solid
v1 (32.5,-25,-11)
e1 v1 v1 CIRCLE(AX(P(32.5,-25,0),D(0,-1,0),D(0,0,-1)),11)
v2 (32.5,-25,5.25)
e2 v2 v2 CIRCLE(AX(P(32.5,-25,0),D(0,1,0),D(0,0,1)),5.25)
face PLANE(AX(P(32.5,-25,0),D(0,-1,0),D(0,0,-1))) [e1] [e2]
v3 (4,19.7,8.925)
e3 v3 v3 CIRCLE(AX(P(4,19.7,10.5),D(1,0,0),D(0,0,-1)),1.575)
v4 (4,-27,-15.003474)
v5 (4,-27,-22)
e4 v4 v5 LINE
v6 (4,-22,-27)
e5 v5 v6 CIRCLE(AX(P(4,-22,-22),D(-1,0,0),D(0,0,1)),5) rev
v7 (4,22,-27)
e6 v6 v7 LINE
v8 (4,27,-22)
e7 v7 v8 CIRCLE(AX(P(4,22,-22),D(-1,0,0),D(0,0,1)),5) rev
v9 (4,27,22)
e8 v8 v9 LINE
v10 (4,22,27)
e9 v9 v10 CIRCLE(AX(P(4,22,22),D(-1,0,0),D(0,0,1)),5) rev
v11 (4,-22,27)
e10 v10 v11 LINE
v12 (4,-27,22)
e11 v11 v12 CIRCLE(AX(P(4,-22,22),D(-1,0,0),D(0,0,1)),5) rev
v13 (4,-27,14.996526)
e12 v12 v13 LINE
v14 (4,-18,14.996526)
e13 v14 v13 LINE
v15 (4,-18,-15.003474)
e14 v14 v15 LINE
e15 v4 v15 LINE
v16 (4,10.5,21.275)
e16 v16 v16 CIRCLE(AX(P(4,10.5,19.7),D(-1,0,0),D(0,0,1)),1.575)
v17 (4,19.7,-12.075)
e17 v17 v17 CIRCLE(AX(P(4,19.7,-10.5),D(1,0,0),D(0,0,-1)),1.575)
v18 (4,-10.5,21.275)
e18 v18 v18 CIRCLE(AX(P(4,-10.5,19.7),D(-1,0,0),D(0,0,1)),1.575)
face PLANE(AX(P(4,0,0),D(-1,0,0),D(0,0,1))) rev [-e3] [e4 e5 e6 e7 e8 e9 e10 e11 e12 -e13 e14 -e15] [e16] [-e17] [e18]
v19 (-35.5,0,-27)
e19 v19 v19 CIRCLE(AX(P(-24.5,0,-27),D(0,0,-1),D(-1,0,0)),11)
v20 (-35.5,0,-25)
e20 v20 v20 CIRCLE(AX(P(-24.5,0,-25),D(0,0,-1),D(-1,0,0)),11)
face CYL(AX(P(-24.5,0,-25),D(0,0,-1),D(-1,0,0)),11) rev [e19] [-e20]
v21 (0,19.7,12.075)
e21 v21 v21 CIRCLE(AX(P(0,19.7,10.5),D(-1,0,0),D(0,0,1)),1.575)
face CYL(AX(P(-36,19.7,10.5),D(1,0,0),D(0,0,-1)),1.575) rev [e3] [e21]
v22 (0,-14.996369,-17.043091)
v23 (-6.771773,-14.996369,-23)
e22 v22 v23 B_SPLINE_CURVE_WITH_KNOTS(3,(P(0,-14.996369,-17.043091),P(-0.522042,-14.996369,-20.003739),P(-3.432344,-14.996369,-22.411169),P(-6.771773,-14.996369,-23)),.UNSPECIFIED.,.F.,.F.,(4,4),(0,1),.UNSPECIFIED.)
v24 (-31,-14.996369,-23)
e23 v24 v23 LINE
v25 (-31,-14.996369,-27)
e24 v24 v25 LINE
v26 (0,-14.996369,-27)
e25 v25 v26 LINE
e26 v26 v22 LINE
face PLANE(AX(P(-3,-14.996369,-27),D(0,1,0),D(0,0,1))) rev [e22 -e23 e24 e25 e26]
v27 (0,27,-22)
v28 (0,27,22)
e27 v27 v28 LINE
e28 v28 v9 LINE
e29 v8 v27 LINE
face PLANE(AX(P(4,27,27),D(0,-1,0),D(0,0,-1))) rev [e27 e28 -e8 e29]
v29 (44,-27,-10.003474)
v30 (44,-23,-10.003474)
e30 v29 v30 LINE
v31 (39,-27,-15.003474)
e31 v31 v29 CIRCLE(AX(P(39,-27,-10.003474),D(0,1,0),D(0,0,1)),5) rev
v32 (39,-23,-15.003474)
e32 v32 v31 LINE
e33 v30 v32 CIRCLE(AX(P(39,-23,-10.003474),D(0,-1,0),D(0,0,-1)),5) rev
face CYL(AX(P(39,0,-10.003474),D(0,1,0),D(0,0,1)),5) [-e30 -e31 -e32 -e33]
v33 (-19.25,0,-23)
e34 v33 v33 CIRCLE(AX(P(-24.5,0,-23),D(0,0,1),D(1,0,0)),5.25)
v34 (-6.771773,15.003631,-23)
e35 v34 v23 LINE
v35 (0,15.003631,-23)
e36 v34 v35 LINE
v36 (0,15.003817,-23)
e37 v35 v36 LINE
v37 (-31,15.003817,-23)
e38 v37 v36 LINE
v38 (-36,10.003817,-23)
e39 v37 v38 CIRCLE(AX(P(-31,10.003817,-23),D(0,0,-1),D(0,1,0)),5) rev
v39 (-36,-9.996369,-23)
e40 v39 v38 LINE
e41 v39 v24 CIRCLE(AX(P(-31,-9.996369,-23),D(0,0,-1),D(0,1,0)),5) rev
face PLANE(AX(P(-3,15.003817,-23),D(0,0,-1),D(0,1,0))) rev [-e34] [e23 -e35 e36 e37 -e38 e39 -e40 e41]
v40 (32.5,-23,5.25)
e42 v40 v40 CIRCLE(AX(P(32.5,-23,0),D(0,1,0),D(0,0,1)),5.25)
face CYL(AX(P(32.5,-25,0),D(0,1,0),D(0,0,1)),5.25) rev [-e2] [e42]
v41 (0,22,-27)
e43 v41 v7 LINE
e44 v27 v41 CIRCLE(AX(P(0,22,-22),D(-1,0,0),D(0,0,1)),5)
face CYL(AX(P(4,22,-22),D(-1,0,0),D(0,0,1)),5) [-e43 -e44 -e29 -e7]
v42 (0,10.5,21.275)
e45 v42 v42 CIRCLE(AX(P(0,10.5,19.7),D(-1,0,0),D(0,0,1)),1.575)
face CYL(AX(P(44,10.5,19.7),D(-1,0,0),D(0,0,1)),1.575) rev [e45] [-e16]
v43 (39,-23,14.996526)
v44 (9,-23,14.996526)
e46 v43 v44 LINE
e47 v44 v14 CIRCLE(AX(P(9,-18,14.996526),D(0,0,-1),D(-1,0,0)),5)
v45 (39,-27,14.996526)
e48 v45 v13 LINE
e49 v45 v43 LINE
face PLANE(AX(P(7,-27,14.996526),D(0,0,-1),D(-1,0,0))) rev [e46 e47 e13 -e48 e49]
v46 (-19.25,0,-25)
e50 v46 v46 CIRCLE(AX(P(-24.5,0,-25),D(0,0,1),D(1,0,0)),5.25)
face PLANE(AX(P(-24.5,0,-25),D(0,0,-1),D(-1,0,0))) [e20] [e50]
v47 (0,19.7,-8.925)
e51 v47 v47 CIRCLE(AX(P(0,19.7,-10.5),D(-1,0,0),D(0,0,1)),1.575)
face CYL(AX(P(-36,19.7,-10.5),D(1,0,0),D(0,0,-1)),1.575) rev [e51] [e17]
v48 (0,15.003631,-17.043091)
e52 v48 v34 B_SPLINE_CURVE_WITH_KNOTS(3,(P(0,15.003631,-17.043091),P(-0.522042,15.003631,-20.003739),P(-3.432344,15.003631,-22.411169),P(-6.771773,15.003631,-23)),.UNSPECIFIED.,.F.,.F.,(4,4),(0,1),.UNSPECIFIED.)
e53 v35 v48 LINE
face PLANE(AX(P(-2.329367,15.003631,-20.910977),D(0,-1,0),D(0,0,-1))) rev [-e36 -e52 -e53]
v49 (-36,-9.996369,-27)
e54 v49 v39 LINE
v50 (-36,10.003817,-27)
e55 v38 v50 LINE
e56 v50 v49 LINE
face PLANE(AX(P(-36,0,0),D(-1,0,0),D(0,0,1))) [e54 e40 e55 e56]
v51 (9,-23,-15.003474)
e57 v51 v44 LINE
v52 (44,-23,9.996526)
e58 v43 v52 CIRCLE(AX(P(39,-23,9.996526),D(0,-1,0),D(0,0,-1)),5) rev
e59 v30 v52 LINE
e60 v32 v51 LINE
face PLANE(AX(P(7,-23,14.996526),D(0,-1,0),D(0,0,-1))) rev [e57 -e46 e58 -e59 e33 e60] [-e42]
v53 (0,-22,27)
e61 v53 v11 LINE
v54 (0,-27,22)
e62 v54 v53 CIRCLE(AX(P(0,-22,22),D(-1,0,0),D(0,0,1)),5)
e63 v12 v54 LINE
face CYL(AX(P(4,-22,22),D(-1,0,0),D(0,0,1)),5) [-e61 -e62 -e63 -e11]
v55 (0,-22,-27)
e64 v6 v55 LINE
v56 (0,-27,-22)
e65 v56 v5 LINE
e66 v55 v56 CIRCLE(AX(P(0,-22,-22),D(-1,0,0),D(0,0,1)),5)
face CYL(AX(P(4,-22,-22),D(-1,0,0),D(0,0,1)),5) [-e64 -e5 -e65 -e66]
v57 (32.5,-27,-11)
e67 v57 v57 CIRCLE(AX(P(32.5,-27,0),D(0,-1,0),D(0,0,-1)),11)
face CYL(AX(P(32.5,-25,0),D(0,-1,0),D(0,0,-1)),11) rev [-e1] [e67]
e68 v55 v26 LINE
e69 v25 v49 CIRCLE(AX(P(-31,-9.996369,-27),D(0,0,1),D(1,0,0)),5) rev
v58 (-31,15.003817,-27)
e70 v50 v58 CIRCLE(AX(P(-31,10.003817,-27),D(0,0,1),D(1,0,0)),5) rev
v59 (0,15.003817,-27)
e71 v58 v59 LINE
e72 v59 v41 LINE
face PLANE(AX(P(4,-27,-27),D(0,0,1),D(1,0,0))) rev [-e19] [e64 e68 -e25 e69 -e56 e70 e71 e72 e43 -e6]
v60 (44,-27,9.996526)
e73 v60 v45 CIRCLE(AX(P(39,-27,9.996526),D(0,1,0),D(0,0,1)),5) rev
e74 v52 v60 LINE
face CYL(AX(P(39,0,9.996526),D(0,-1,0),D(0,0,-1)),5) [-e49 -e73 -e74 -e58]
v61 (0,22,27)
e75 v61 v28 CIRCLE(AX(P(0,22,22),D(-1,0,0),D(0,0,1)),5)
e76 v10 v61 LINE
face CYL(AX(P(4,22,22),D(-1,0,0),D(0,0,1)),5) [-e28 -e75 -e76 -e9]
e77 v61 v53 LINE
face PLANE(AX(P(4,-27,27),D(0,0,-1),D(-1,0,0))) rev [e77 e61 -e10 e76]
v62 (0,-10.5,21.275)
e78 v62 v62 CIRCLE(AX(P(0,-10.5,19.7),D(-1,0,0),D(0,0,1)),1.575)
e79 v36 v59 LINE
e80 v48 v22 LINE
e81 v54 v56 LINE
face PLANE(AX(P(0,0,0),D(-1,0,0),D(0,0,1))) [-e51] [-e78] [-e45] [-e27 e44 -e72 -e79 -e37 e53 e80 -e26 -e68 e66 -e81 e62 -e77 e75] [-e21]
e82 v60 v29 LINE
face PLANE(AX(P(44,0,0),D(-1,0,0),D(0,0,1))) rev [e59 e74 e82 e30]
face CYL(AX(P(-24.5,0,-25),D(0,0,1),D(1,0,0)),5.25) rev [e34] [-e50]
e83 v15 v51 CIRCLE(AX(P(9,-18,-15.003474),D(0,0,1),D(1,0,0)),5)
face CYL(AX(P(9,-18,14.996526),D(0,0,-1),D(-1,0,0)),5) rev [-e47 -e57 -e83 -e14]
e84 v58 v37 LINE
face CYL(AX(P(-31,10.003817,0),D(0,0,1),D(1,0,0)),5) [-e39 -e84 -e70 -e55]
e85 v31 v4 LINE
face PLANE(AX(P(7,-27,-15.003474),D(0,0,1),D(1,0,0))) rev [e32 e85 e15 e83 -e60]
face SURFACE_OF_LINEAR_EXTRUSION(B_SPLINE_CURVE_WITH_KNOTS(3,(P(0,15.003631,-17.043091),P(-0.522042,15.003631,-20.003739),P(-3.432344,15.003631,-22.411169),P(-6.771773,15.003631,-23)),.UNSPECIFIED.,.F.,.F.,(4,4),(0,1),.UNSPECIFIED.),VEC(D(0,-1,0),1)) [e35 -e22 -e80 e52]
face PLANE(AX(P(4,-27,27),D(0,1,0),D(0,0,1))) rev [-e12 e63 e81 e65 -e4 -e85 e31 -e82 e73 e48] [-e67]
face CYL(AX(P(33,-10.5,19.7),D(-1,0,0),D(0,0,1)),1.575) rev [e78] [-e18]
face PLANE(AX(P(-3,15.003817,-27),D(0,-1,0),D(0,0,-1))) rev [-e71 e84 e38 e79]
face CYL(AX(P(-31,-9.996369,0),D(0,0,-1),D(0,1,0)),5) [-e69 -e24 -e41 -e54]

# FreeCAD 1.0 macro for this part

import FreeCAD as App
import Part
import Sketcher
from FreeCAD import Vector
Q = App.Units.Quantity


def edges_at(feature, points):
    """Names of the edges that pass closest to the given points."""
    edges = feature.Shape.Edges
    near = lambda p: min(range(len(edges)), key=lambda i: edges[i].distToShape(Part.Vertex(*p))[0])
    return sorted({f"Edge{near(p) + 1}" for p in points})

doc = App.newDocument("Part")
body = doc.addObject("PartDesign::Body", "Body")

# Sketch on YZ plane
sketch1 = doc.addObject("Sketcher::SketchObject", "Sketch")
body.addObject(sketch1)
sketch1.AttachmentSupport = (doc.YZ_Plane, [""])
sketch1.MapMode = "FlatFace"
sketch1.addGeometry([
    Part.LineSegment(Vector(27, 27, 0), Vector(-27, 27, 0)),
    Part.LineSegment(Vector(-27, 27, 0), Vector(-27, -27, 0)),
    Part.LineSegment(Vector(-27, -27, 0), Vector(27, -27, 0)),
    Part.LineSegment(Vector(27, -27, 0), Vector(27, 27, 0)),
], False)
sketch1.addConstraint([
    Sketcher.Constraint("Coincident", 0, 2, 1, 1),
    Sketcher.Constraint("Coincident", 1, 2, 2, 1),
    Sketcher.Constraint("Coincident", 2, 2, 3, 1),
    Sketcher.Constraint("Coincident", 3, 2, 0, 1),
    Sketcher.Constraint("Horizontal", 0),
    Sketcher.Constraint("Vertical", 1),
    Sketcher.Constraint("Horizontal", 2),
    Sketcher.Constraint("Vertical", 3),
    Sketcher.Constraint("Symmetric", 0, 2, 2, 2, -1, 1),
    Sketcher.Constraint("Equal", 2, 1),
    Sketcher.Constraint("DistanceX", 0, 2, 0, 1, Q("54 mm")),
])
pad1 = doc.addObject("PartDesign::Pad", "Pad")
body.addObject(pad1)
pad1.Profile = sketch1
pad1.Length = 4
doc.recompute()

fillet = doc.addObject("PartDesign::Fillet", "Fillet")
body.addObject(fillet)
fillet.Base = (pad1, edges_at(pad1, [
    (2, -27, -27),
    (2, -27, 27),
    (2, 27, 27),
    (2, 27, -27),
]))
fillet.Radius = 5

# Sketch on YZ plane
sketch2 = doc.addObject("Sketcher::SketchObject", "Sketch001")
body.addObject(sketch2)
sketch2.AttachmentSupport = (doc.YZ_Plane, [""])
sketch2.MapMode = "FlatFace"
sketch2.AttachmentOffset = App.Placement(Vector(0, 0, 4), App.Rotation())
sketch2.addGeometry([
    Part.LineSegment(Vector(-23, 14.996526, 0), Vector(-27, 14.996526, 0)),
    Part.LineSegment(Vector(-27, 14.996526, 0), Vector(-27, -15.003474, 0)),
    Part.LineSegment(Vector(-27, -15.003474, 0), Vector(-23, -15.003474, 0)),
    Part.LineSegment(Vector(-23, -15.003474, 0), Vector(-23, 14.996526, 0)),
], False)
sketch2.addConstraint([
    Sketcher.Constraint("Coincident", 0, 2, 1, 1),
    Sketcher.Constraint("Coincident", 1, 2, 2, 1),
    Sketcher.Constraint("Coincident", 2, 2, 3, 1),
    Sketcher.Constraint("Coincident", 3, 2, 0, 1),
    Sketcher.Constraint("Horizontal", 0),
    Sketcher.Constraint("Vertical", 1),
    Sketcher.Constraint("Horizontal", 2),
    Sketcher.Constraint("Vertical", 3),
    Sketcher.Constraint("DistanceX", 0, 2, 0, 1, Q("4 mm")),
    Sketcher.Constraint("DistanceY", 1, 2, 1, 1, Q("30 mm")),
    Sketcher.Constraint("DistanceX", 0, 2, -1, 1, Q("27 mm")),
    Sketcher.Constraint("DistanceY", -1, 1, 0, 2, Q("14.996526 mm")),
])
pad2 = doc.addObject("PartDesign::Pad", "Pad001")
body.addObject(pad2)
pad2.Profile = sketch2
pad2.Length = 3

# Sketch on YZ plane
sketch3 = doc.addObject("Sketcher::SketchObject", "Sketch002")
body.addObject(sketch3)
sketch3.AttachmentSupport = (doc.YZ_Plane, [""])
sketch3.MapMode = "FlatFace"
sketch3.AttachmentOffset = App.Placement(Vector(0, 0, 7), App.Rotation())
sketch3.addGeometry([
    Part.LineSegment(Vector(-23, 14.996526, 0), Vector(-27, 14.996526, 0)),
    Part.LineSegment(Vector(-27, 14.996526, 0), Vector(-27, -15.003474, 0)),
    Part.LineSegment(Vector(-27, -15.003474, 0), Vector(-23, -15.003474, 0)),
    Part.LineSegment(Vector(-23, -15.003474, 0), Vector(-23, 14.996526, 0)),
], False)
sketch3.addConstraint([
    Sketcher.Constraint("Coincident", 0, 2, 1, 1),
    Sketcher.Constraint("Coincident", 1, 2, 2, 1),
    Sketcher.Constraint("Coincident", 2, 2, 3, 1),
    Sketcher.Constraint("Coincident", 3, 2, 0, 1),
    Sketcher.Constraint("Horizontal", 0),
    Sketcher.Constraint("Vertical", 1),
    Sketcher.Constraint("Horizontal", 2),
    Sketcher.Constraint("Vertical", 3),
    Sketcher.Constraint("DistanceX", 0, 2, 0, 1, Q("4 mm")),
    Sketcher.Constraint("DistanceY", 1, 2, 1, 1, Q("30 mm")),
    Sketcher.Constraint("DistanceX", 0, 2, -1, 1, Q("27 mm")),
    Sketcher.Constraint("DistanceY", -1, 1, 0, 2, Q("14.996526 mm")),
])
pad3 = doc.addObject("PartDesign::Pad", "Pad002")
body.addObject(pad3)
pad3.Profile = sketch3
pad3.Length = 37

# Sketch on YZ plane
sketch4 = doc.addObject("Sketcher::SketchObject", "Sketch003")
body.addObject(sketch4)
sketch4.AttachmentSupport = (doc.YZ_Plane, [""])
sketch4.MapMode = "FlatFace"
sketch4.addGeometry([
    Part.LineSegment(Vector(15.003817, -27, 0), Vector(-14.996369, -27, 0)),
    Part.LineSegment(Vector(-14.996369, -27, 0), Vector(-14.996369, -23, 0)),
    Part.LineSegment(Vector(-14.996369, -23, 0), Vector(15.003817, -23, 0)),
    Part.LineSegment(Vector(15.003817, -23, 0), Vector(15.003817, -27, 0)),
], False)
sketch4.addConstraint([
    Sketcher.Constraint("Coincident", 0, 2, 1, 1),
    Sketcher.Constraint("Coincident", 1, 2, 2, 1),
    Sketcher.Constraint("Coincident", 2, 2, 3, 1),
    Sketcher.Constraint("Coincident", 3, 2, 0, 1),
    Sketcher.Constraint("Horizontal", 0),
    Sketcher.Constraint("Vertical", 1),
    Sketcher.Constraint("Horizontal", 2),
    Sketcher.Constraint("Vertical", 3),
    Sketcher.Constraint("DistanceY", 1, 1, 1, 2, Q("4 mm")),
    Sketcher.Constraint("DistanceY", 0, 2, -1, 1, Q("27 mm")),
    Sketcher.Constraint("DistanceX", 0, 2, 0, 1, Q("30.000186 mm")),
    Sketcher.Constraint("DistanceX", 0, 2, -1, 1, Q("14.996369 mm")),
])
pad4 = doc.addObject("PartDesign::Pad", "Pad003")
body.addObject(pad4)
pad4.Profile = sketch4
pad4.Length = 3
pad4.Reversed = True

# Sketch on YZ plane
sketch5 = doc.addObject("Sketcher::SketchObject", "Sketch004")
body.addObject(sketch5)
sketch5.AttachmentSupport = (doc.YZ_Plane, [""])
sketch5.MapMode = "FlatFace"
sketch5.AttachmentOffset = App.Placement(Vector(0, 0, -3), App.Rotation())
sketch5.addGeometry([
    Part.LineSegment(Vector(15.003817, -27, 0), Vector(-14.996369, -27, 0)),
    Part.LineSegment(Vector(-14.996369, -27, 0), Vector(-14.996369, -23, 0)),
    Part.LineSegment(Vector(-14.996369, -23, 0), Vector(15.003817, -23, 0)),
    Part.LineSegment(Vector(15.003817, -23, 0), Vector(15.003817, -27, 0)),
], False)
sketch5.addConstraint([
    Sketcher.Constraint("Coincident", 0, 2, 1, 1),
    Sketcher.Constraint("Coincident", 1, 2, 2, 1),
    Sketcher.Constraint("Coincident", 2, 2, 3, 1),
    Sketcher.Constraint("Coincident", 3, 2, 0, 1),
    Sketcher.Constraint("Horizontal", 0),
    Sketcher.Constraint("Vertical", 1),
    Sketcher.Constraint("Horizontal", 2),
    Sketcher.Constraint("Vertical", 3),
    Sketcher.Constraint("DistanceY", 1, 1, 1, 2, Q("4 mm")),
    Sketcher.Constraint("DistanceY", 0, 2, -1, 1, Q("27 mm")),
    Sketcher.Constraint("DistanceX", 0, 2, 0, 1, Q("30.000186 mm")),
    Sketcher.Constraint("DistanceX", 0, 2, -1, 1, Q("14.996369 mm")),
])
pad5 = doc.addObject("PartDesign::Pad", "Pad004")
body.addObject(pad5)
pad5.Profile = sketch5
pad5.Length = 33
pad5.Reversed = True
doc.recompute()

fillet2 = doc.addObject("PartDesign::Fillet", "Fillet001")
body.addObject(fillet2)
fillet2.Base = (pad5, edges_at(pad5, [
    (44, -25, 14.997),
    (44, -25, -15.003),
    (-36, -14.996, -25),
    (-36, 15.004, -25),
]))
fillet2.Radius = 5

# Sketch on XY plane
sketch6 = doc.addObject("Sketcher::SketchObject", "Sketch005")
body.addObject(sketch6)
sketch6.AttachmentSupport = (doc.XY_Plane, [""])
sketch6.MapMode = "FlatFace"
sketch6.AttachmentOffset = App.Placement(Vector(0, 0, -27), App.Rotation())
sketch6.addGeometry(Part.Circle(Vector(-24.5, 0, 0), Vector(0, 0, 1), 1.25), False)
sketch6.addConstraint([
    Sketcher.Constraint("PointOnObject", 0, 3, -1),
    Sketcher.Constraint("Diameter", 0, Q("2.5 mm")),
    Sketcher.Constraint("DistanceX", 0, 3, -1, 1, Q("24.5 mm")),
])
pocket1 = doc.addObject("PartDesign::Pocket", "Pocket")
body.addObject(pocket1)
pocket1.Profile = sketch6
pocket1.Type = "ThroughAll"
pocket1.Reversed = True

# Sketch on XZ plane
sketch7 = doc.addObject("Sketcher::SketchObject", "Sketch006")
body.addObject(sketch7)
sketch7.AttachmentSupport = (doc.XZ_Plane, [""])
sketch7.MapMode = "FlatFace"
sketch7.AttachmentOffset = App.Placement(Vector(0, 0, 27), App.Rotation())
sketch7.addGeometry(Part.Circle(Vector(32.5, 0, 0), Vector(0, 0, 1), 1.25), False)
sketch7.addConstraint([
    Sketcher.Constraint("PointOnObject", 0, 3, -1),
    Sketcher.Constraint("Diameter", 0, Q("2.5 mm")),
    Sketcher.Constraint("DistanceX", -1, 1, 0, 3, Q("32.5 mm")),
])
pocket2 = doc.addObject("PartDesign::Pocket", "Pocket001")
body.addObject(pocket2)
pocket2.Profile = sketch7
pocket2.Type = "ThroughAll"

# Sketch on YZ plane
sketch8 = doc.addObject("Sketcher::SketchObject", "Sketch007")
body.addObject(sketch8)
sketch8.AttachmentSupport = (doc.YZ_Plane, [""])
sketch8.MapMode = "FlatFace"
sketch8.AttachmentOffset = App.Placement(Vector(0, 0, 4), App.Rotation())
sketch8.addGeometry(Part.Circle(Vector(19.7, 10.5, 0), Vector(0, 0, 1), 1.575), False)
sketch8.addConstraint([
    Sketcher.Constraint("Diameter", 0, Q("3.15 mm")),
    Sketcher.Constraint("DistanceX", -1, 1, 0, 3, Q("19.7 mm")),
    Sketcher.Constraint("DistanceY", -1, 1, 0, 3, Q("10.5 mm")),
])
pocket3 = doc.addObject("PartDesign::Pocket", "Pocket002")
body.addObject(pocket3)
pocket3.Profile = sketch8
pocket3.Type = "ThroughAll"

# Sketch on YZ plane
sketch9 = doc.addObject("Sketcher::SketchObject", "Sketch008")
body.addObject(sketch9)
sketch9.AttachmentSupport = (doc.YZ_Plane, [""])
sketch9.MapMode = "FlatFace"
sketch9.AttachmentOffset = App.Placement(Vector(0, 0, 4), App.Rotation())
sketch9.addGeometry(Part.Circle(Vector(19.7, -10.5, 0), Vector(0, 0, 1), 1.575), False)
sketch9.addConstraint([
    Sketcher.Constraint("Diameter", 0, Q("3.15 mm")),
    Sketcher.Constraint("DistanceX", -1, 1, 0, 3, Q("19.7 mm")),
    Sketcher.Constraint("DistanceY", 0, 3, -1, 1, Q("10.5 mm")),
])
pocket4 = doc.addObject("PartDesign::Pocket", "Pocket003")
body.addObject(pocket4)
pocket4.Profile = sketch9
pocket4.Type = "ThroughAll"
doc.recompute()

fillet3 = doc.addObject("PartDesign::Fillet", "Fillet002")
body.addObject(fillet3)
fillet3.Base = (pocket4, edges_at(pocket4, [(4, -23, -0.003)]))
fillet3.Radius = 5

# Sketch on YZ plane
sketch10 = doc.addObject("Sketcher::SketchObject", "Sketch009")
body.addObject(sketch10)
sketch10.AttachmentSupport = (doc.YZ_Plane, [""])
sketch10.MapMode = "FlatFace"
sketch10.addGeometry(Part.Circle(Vector(10.5, 19.7, 0), Vector(0, 0, 1), 1.575), False)
sketch10.addConstraint([
    Sketcher.Constraint("Diameter", 0, Q("3.15 mm")),
    Sketcher.Constraint("DistanceX", -1, 1, 0, 3, Q("10.5 mm")),
    Sketcher.Constraint("DistanceY", -1, 1, 0, 3, Q("19.7 mm")),
])
pocket5 = doc.addObject("PartDesign::Pocket", "Pocket004")
body.addObject(pocket5)
pocket5.Profile = sketch10
pocket5.Type = "ThroughAll"
pocket5.Reversed = True

# Sketch on YZ plane
sketch11 = doc.addObject("Sketcher::SketchObject", "Sketch010")
body.addObject(sketch11)
sketch11.AttachmentSupport = (doc.YZ_Plane, [""])
sketch11.MapMode = "FlatFace"
sketch11.addGeometry(Part.Circle(Vector(-10.5, 19.7, 0), Vector(0, 0, 1), 1.575), False)
sketch11.addConstraint([
    Sketcher.Constraint("Diameter", 0, Q("3.15 mm")),
    Sketcher.Constraint("DistanceX", 0, 3, -1, 1, Q("10.5 mm")),
    Sketcher.Constraint("DistanceY", -1, 1, 0, 3, Q("19.7 mm")),
])
pocket6 = doc.addObject("PartDesign::Pocket", "Pocket005")
body.addObject(pocket6)
pocket6.Profile = sketch11
pocket6.Length = 33
pocket6.Reversed = True

# Sketch on XZ plane
sketch12 = doc.addObject("Sketcher::SketchObject", "Sketch011")
body.addObject(sketch12)
sketch12.AttachmentSupport = (doc.XZ_Plane, [""])
sketch12.MapMode = "FlatFace"
sketch12.AttachmentOffset = App.Placement(Vector(0, 0, 14.996369), App.Rotation())
sketch12.addGeometry([
    Part.LineSegment(Vector(-6.771773, -23, 0), Vector(0, -23, 0)),
    Part.LineSegment(Vector(0, -23, 0), Vector(0, -17.043091, 0)),
    Part.BSplineCurve([Vector(0, -17.043091, 0), Vector(-0.522042, -20.003739, 0), Vector(-3.432344, -22.411169, 0), Vector(-6.771773, -23, 0)], [4, 4], [0, 1], False, 3, [1, 1, 1, 1], False),
], False)
sketch12.addConstraint([
    Sketcher.Constraint("Block", 2),
    Sketcher.Constraint("Coincident", 0, 2, 1, 1),
    Sketcher.Constraint("Coincident", 1, 2, 2, 1),
    Sketcher.Constraint("Coincident", 2, 2, 0, 1),
    Sketcher.Constraint("Horizontal", 0),
    Sketcher.Constraint("Vertical", 1),
])
pad6 = doc.addObject("PartDesign::Pad", "Pad005")
body.addObject(pad6)
pad6.Profile = sketch12
pad6.Length = 30
pad6.Reversed = True

# Sketch on XZ plane
sketch13 = doc.addObject("Sketcher::SketchObject", "Sketch012")
body.addObject(sketch13)
sketch13.AttachmentSupport = (doc.XZ_Plane, [""])
sketch13.MapMode = "FlatFace"
sketch13.AttachmentOffset = App.Placement(Vector(0, 0, 27), App.Rotation())
sketch13.addGeometry(Part.Circle(Vector(32.5, 0, 0), Vector(0, 0, 1), 11), False)
sketch13.addConstraint([
    Sketcher.Constraint("PointOnObject", 0, 3, -1),
    Sketcher.Constraint("Diameter", 0, Q("22 mm")),
    Sketcher.Constraint("DistanceX", -1, 1, 0, 3, Q("32.5 mm")),
])
pocket7 = doc.addObject("PartDesign::Pocket", "Pocket006")
body.addObject(pocket7)
pocket7.Profile = sketch13
pocket7.Length = 2

# Sketch on XZ plane
sketch14 = doc.addObject("Sketcher::SketchObject", "Sketch013")
body.addObject(sketch14)
sketch14.AttachmentSupport = (doc.XZ_Plane, [""])
sketch14.MapMode = "FlatFace"
sketch14.AttachmentOffset = App.Placement(Vector(0, 0, 23), App.Rotation())
sketch14.addGeometry(Part.Circle(Vector(32.5, 0, 0), Vector(0, 0, 1), 5.25), False)
sketch14.addConstraint([
    Sketcher.Constraint("PointOnObject", 0, 3, -1),
    Sketcher.Constraint("Diameter", 0, Q("10.5 mm")),
    Sketcher.Constraint("DistanceX", -1, 1, 0, 3, Q("32.5 mm")),
])
pocket8 = doc.addObject("PartDesign::Pocket", "Pocket007")
body.addObject(pocket8)
pocket8.Profile = sketch14
pocket8.Length = 2
pocket8.Reversed = True

# Sketch on XY plane
sketch15 = doc.addObject("Sketcher::SketchObject", "Sketch014")
body.addObject(sketch15)
sketch15.AttachmentSupport = (doc.XY_Plane, [""])
sketch15.MapMode = "FlatFace"
sketch15.AttachmentOffset = App.Placement(Vector(0, 0, -27), App.Rotation())
sketch15.addGeometry(Part.Circle(Vector(-24.5, 0, 0), Vector(0, 0, 1), 11), False)
sketch15.addConstraint([
    Sketcher.Constraint("PointOnObject", 0, 3, -1),
    Sketcher.Constraint("Diameter", 0, Q("22 mm")),
    Sketcher.Constraint("DistanceX", 0, 3, -1, 1, Q("24.5 mm")),
])
pocket9 = doc.addObject("PartDesign::Pocket", "Pocket008")
body.addObject(pocket9)
pocket9.Profile = sketch15
pocket9.Length = 2
pocket9.Reversed = True

# Sketch on XY plane
sketch16 = doc.addObject("Sketcher::SketchObject", "Sketch015")
body.addObject(sketch16)
sketch16.AttachmentSupport = (doc.XY_Plane, [""])
sketch16.MapMode = "FlatFace"
sketch16.AttachmentOffset = App.Placement(Vector(0, 0, -23), App.Rotation())
sketch16.addGeometry(Part.Circle(Vector(-24.5, 0, 0), Vector(0, 0, 1), 5.25), False)
sketch16.addConstraint([
    Sketcher.Constraint("PointOnObject", 0, 3, -1),
    Sketcher.Constraint("Diameter", 0, Q("10.5 mm")),
    Sketcher.Constraint("DistanceX", 0, 3, -1, 1, Q("24.5 mm")),
])
pocket10 = doc.addObject("PartDesign::Pocket", "Pocket009")
body.addObject(pocket10)
pocket10.Profile = sketch16
pocket10.Length = 2

doc.recompute()
